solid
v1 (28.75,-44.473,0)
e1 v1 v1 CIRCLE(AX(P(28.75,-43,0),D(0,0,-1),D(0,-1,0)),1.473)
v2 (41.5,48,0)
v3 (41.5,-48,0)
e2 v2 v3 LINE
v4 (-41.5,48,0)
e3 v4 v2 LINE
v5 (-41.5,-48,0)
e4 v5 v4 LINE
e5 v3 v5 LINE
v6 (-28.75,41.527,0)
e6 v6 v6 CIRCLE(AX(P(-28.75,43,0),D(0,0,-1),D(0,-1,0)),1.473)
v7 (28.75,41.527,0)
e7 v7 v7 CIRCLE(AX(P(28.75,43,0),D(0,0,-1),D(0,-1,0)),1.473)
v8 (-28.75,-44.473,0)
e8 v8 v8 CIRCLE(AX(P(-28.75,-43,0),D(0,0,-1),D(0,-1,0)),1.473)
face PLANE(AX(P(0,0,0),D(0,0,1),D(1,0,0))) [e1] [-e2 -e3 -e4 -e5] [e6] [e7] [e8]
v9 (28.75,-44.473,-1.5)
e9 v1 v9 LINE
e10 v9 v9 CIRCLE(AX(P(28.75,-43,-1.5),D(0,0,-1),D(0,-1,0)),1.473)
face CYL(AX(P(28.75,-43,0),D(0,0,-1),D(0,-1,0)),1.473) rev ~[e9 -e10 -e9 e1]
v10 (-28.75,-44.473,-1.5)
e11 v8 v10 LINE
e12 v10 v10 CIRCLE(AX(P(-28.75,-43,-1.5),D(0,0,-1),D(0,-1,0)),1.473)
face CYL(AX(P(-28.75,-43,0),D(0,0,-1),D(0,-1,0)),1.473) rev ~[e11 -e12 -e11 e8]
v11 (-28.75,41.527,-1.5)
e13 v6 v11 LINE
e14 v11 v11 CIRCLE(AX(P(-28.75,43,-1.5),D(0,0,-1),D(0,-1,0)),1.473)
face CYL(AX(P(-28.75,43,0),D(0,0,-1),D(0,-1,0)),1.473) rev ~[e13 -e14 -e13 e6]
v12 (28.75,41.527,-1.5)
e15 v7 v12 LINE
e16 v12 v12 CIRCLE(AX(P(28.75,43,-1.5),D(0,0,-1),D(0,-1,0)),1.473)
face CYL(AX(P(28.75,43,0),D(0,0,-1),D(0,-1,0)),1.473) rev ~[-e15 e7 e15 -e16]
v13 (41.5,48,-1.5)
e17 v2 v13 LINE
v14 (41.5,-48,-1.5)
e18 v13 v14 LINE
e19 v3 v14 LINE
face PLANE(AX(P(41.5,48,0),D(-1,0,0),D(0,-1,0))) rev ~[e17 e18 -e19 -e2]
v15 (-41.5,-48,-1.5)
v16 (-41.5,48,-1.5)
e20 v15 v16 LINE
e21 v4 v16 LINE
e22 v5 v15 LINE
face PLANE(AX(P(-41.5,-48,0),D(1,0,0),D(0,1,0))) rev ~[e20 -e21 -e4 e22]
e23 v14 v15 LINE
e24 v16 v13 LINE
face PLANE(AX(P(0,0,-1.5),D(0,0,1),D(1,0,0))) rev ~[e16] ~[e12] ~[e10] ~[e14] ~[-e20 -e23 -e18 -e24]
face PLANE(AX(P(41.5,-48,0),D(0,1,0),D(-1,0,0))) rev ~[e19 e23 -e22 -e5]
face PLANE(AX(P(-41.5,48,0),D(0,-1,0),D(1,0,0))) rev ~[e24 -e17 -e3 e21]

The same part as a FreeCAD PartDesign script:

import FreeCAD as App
import Part
import Sketcher

V = App.Vector

doc = App.newDocument("Part")
body = doc.addObject("PartDesign::Body", "Body")

# Sketch on XY plane
sketch1 = body.newObject("Sketcher::SketchObject", "Sketch")
sketch1.AttachmentSupport = (doc.getObject("XY_Plane"), [""])
sketch1.MapMode = "FlatFace"
sketch1.addGeometry([
    Part.LineSegment(V(41.5, 48, 0), V(-41.5, 48, 0)),
    Part.LineSegment(V(-41.5, 48, 0), V(-41.5, -48, 0)),
    Part.LineSegment(V(-41.5, -48, 0), V(41.5, -48, 0)),
    Part.LineSegment(V(41.5, -48, 0), V(41.5, 48, 0)),
], False)
sketch1.addConstraint([
    Sketcher.Constraint("Coincident", 0, 2, 1, 1),
    Sketcher.Constraint("Coincident", 1, 2, 2, 1),
    Sketcher.Constraint("Coincident", 2, 2, 3, 1),
    Sketcher.Constraint("Coincident", 3, 2, 0, 1),
    Sketcher.Constraint("Horizontal", 0),
    Sketcher.Constraint("Vertical", 1),
    Sketcher.Constraint("Horizontal", 2),
    Sketcher.Constraint("Vertical", 3),
    Sketcher.Constraint("Symmetric", 0, 2, 2, 2, -1, 1),
    Sketcher.Constraint("DistanceX", 0, 2, 0, 1, 83.0),
    Sketcher.Constraint("DistanceY", 1, 2, 1, 1, 96.0),
])
pad1 = body.newObject("PartDesign::Pad", "Pad")
pad1.Profile = sketch1
pad1.Length = 1.5
pad1.Reversed = True

# Sketch on XY plane
sketch2 = body.newObject("Sketcher::SketchObject", "Sketch001")
sketch2.AttachmentSupport = (doc.getObject("XY_Plane"), [""])
sketch2.MapMode = "FlatFace"
sketch2.addGeometry([
    Part.Circle(V(-28.75, 43, 0), V(0, 0, 1), 1.473),
    Part.Circle(V(28.75, 43, 0), V(0, 0, 1), 1.473),
    Part.Circle(V(-28.75, -43, 0), V(0, 0, 1), 1.473),
    Part.Circle(V(28.75, -43, 0), V(0, 0, 1), 1.473),
], False)
sketch2.addConstraint([
    Sketcher.Constraint("Equal", 0, 1),
    Sketcher.Constraint("Equal", 1, 2),
    Sketcher.Constraint("Equal", 2, 3),
    Sketcher.Constraint("Symmetric", 1, 3, 2, 3, -1, 1),
    Sketcher.Constraint("Symmetric", 0, 3, 3, 3, -1, 1),
    Sketcher.Constraint("Symmetric", 0, 3, 1, 3, -2),
    Sketcher.Constraint("Diameter", 0, 2.946),
    Sketcher.Constraint("DistanceY", -1, 1, 0, 3, 43.0),
    Sketcher.Constraint("DistanceX", 0, 3, 1, 3, 57.5),
])
doc.recompute()
hole = body.newObject("PartDesign::Hole", "Hole")
hole.Profile = sketch2
hole.ThreadType = "None"
hole.Diameter = 2.946
hole.DepthType = "ThroughAll"

doc.recompute()
